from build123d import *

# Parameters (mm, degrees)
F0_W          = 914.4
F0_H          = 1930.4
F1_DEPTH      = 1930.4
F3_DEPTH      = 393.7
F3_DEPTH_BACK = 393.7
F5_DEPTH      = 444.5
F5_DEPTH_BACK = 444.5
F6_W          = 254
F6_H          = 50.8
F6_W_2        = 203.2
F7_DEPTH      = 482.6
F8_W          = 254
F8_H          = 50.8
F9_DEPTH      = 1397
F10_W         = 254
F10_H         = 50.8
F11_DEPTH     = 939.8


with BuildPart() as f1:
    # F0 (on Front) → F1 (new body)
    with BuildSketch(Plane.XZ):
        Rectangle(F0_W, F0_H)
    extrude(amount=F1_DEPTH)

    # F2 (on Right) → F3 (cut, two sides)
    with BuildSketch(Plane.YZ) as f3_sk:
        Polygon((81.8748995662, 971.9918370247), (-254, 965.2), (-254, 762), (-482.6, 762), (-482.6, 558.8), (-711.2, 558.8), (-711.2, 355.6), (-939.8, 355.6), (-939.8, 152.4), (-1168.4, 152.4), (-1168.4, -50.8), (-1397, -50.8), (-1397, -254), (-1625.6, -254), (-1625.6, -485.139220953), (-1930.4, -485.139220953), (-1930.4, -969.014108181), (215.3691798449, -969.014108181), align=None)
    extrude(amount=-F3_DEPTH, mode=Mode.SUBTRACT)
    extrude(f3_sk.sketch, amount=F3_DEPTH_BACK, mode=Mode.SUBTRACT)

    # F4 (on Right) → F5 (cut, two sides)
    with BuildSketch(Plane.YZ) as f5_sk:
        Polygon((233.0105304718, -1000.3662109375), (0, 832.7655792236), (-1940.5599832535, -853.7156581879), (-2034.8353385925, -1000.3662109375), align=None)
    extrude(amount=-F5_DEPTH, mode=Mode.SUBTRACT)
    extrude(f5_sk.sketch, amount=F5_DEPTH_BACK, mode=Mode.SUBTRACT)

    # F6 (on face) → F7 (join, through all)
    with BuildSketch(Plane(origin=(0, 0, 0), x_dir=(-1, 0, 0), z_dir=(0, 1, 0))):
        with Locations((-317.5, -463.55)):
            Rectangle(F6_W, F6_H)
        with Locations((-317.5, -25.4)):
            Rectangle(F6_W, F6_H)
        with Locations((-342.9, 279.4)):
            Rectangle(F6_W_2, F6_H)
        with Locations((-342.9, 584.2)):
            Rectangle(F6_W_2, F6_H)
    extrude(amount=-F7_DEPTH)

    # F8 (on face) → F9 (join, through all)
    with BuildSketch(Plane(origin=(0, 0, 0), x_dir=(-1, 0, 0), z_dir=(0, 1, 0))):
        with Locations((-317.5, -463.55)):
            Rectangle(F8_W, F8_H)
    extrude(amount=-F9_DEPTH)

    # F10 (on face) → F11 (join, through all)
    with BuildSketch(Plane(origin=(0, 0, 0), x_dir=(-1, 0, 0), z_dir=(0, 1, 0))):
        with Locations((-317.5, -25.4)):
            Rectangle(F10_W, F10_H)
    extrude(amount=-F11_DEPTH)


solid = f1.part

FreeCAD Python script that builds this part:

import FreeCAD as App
import Part
import Sketcher
from FreeCAD import Vector
Q = App.Units.Quantity

doc = App.newDocument("Part")
body = doc.addObject("PartDesign::Body", "Body")

# Sketch on XZ plane
sketch1 = body.newObject("Sketcher::SketchObject", "Sketch")
sketch1.AttachmentSupport = (doc.getObject("XZ_Plane"), [""])
sketch1.MapMode = "FlatFace"
sketch1.addGeometry(Part.LineSegment(Vector(-457, 965, 0), Vector(-457, -965, 0)), False)
sketch1.addGeometry(Part.LineSegment(Vector(-457, -965, 0), Vector(457, -965, 0)), False)
sketch1.addGeometry(Part.LineSegment(Vector(457, -965, 0), Vector(457, 965, 0)), False)
sketch1.addGeometry(Part.LineSegment(Vector(457, 965, 0), Vector(-457, 965, 0)), False)
sketch1.addConstraint(Sketcher.Constraint("Coincident", 0, 2, 1, 1))
sketch1.addConstraint(Sketcher.Constraint("Coincident", 1, 2, 2, 1))
sketch1.addConstraint(Sketcher.Constraint("Coincident", 2, 2, 3, 1))
sketch1.addConstraint(Sketcher.Constraint("Coincident", 3, 2, 0, 1))
sketch1.addConstraint(Sketcher.Constraint("Vertical", 0))
sketch1.addConstraint(Sketcher.Constraint("Horizontal", 1))
sketch1.addConstraint(Sketcher.Constraint("Vertical", 2))
sketch1.addConstraint(Sketcher.Constraint("Horizontal", 3))
sketch1.addConstraint(Sketcher.Constraint("Symmetric", 0, 2, 2, 2, -1, 1))
sketch1.addConstraint(Sketcher.Constraint("DistanceX", 1, 1, 1, 2, Q("36 in")))
sketch1.addConstraint(Sketcher.Constraint("DistanceY", 0, 2, 0, 1, Q("76 in")))
pad1 = body.newObject("PartDesign::Pad", "Pad")
pad1.Profile = sketch1
pad1.Length = Q("76 in")

# Sketch on YZ plane
sketch2 = body.newObject("Sketcher::SketchObject", "Sketch001")
sketch2.AttachmentSupport = (doc.getObject("YZ_Plane"), [""])
sketch2.MapMode = "FlatFace"
sketch2.addGeometry(Part.LineSegment(Vector(82, 972, 0), Vector(-254, 965, 0)), False)
sketch2.addGeometry(Part.LineSegment(Vector(-254, 965, 0), Vector(-254, 762, 0)), False)
sketch2.addGeometry(Part.LineSegment(Vector(-254, 762, 0), Vector(-483, 762, 0)), False)
sketch2.addGeometry(Part.LineSegment(Vector(-483, 762, 0), Vector(-483, 559, 0)), False)
sketch2.addGeometry(Part.LineSegment(Vector(-483, 559, 0), Vector(-711, 559, 0)), False)
sketch2.addGeometry(Part.LineSegment(Vector(-711, 559, 0), Vector(-711, 356, 0)), False)
sketch2.addGeometry(Part.LineSegment(Vector(-711, 356, 0), Vector(-940, 356, 0)), False)
sketch2.addGeometry(Part.LineSegment(Vector(-940, 356, 0), Vector(-940, 152, 0)), False)
sketch2.addGeometry(Part.LineSegment(Vector(-940, 152, 0), Vector(-1168, 152, 0)), False)
sketch2.addGeometry(Part.LineSegment(Vector(-1168, 152, 0), Vector(-1168, -51, 0)), False)
sketch2.addGeometry(Part.LineSegment(Vector(-1168, -51, 0), Vector(-1397, -51, 0)), False)
sketch2.addGeometry(Part.LineSegment(Vector(-1397, -51, 0), Vector(-1397, -254, 0)), False)
sketch2.addGeometry(Part.LineSegment(Vector(-1397, -254, 0), Vector(-1626, -254, 0)), False)
sketch2.addGeometry(Part.LineSegment(Vector(-1626, -254, 0), Vector(-1626, -485, 0)), False)
sketch2.addGeometry(Part.LineSegment(Vector(-1626, -485, 0), Vector(-1930, -485, 0)), False)
sketch2.addGeometry(Part.LineSegment(Vector(-1930, -485, 0), Vector(-1930, -969, 0)), False)
sketch2.addGeometry(Part.LineSegment(Vector(-1930, -969, 0), Vector(215, -969, 0)), False)
sketch2.addGeometry(Part.LineSegment(Vector(215, -969, 0), Vector(82, 972, 0)), False)
sketch2.addConstraint(Sketcher.Constraint("Coincident", 0, 2, 1, 1))
sketch2.addConstraint(Sketcher.Constraint("Coincident", 1, 2, 2, 1))
sketch2.addConstraint(Sketcher.Constraint("Coincident", 2, 2, 3, 1))
sketch2.addConstraint(Sketcher.Constraint("Coincident", 3, 2, 4, 1))
sketch2.addConstraint(Sketcher.Constraint("Coincident", 4, 2, 5, 1))
sketch2.addConstraint(Sketcher.Constraint("Coincident", 5, 2, 6, 1))
sketch2.addConstraint(Sketcher.Constraint("Coincident", 6, 2, 7, 1))
sketch2.addConstraint(Sketcher.Constraint("Coincident", 7, 2, 8, 1))
sketch2.addConstraint(Sketcher.Constraint("Coincident", 8, 2, 9, 1))
sketch2.addConstraint(Sketcher.Constraint("Coincident", 9, 2, 10, 1))
sketch2.addConstraint(Sketcher.Constraint("Coincident", 10, 2, 11, 1))
sketch2.addConstraint(Sketcher.Constraint("Coincident", 11, 2, 12, 1))
sketch2.addConstraint(Sketcher.Constraint("Coincident", 12, 2, 13, 1))
sketch2.addConstraint(Sketcher.Constraint("Coincident", 13, 2, 14, 1))
sketch2.addConstraint(Sketcher.Constraint("Coincident", 14, 2, 15, 1))
sketch2.addConstraint(Sketcher.Constraint("Coincident", 15, 2, 16, 1))
sketch2.addConstraint(Sketcher.Constraint("Coincident", 16, 2, 17, 1))
sketch2.addConstraint(Sketcher.Constraint("Coincident", 17, 2, 0, 1))
sketch2.addConstraint(Sketcher.Constraint("Vertical", 1))
sketch2.addConstraint(Sketcher.Constraint("Horizontal", 2))
sketch2.addConstraint(Sketcher.Constraint("Vertical", 3))
sketch2.addConstraint(Sketcher.Constraint("Horizontal", 4))
sketch2.addConstraint(Sketcher.Constraint("Vertical", 5))
sketch2.addConstraint(Sketcher.Constraint("Horizontal", 6))
sketch2.addConstraint(Sketcher.Constraint("Vertical", 7))
sketch2.addConstraint(Sketcher.Constraint("Horizontal", 8))
sketch2.addConstraint(Sketcher.Constraint("Vertical", 9))
sketch2.addConstraint(Sketcher.Constraint("Horizontal", 10))
sketch2.addConstraint(Sketcher.Constraint("Vertical", 11))
sketch2.addConstraint(Sketcher.Constraint("Horizontal", 12))
sketch2.addConstraint(Sketcher.Constraint("Vertical", 13))
sketch2.addConstraint(Sketcher.Constraint("Horizontal", 14))
sketch2.addConstraint(Sketcher.Constraint("Vertical", 15))
sketch2.addConstraint(Sketcher.Constraint("Horizontal", 16))
sketch2.addConstraint(Sketcher.Constraint("Equal", 2, 4))
sketch2.addConstraint(Sketcher.Constraint("Equal", 4, 6))
sketch2.addConstraint(Sketcher.Constraint("Equal", 6, 8))
sketch2.addConstraint(Sketcher.Constraint("Equal", 8, 10))
sketch2.addConstraint(Sketcher.Constraint("Equal", 10, 12))
sketch2.addConstraint(Sketcher.Constraint("Equal", 1, 3))
sketch2.addConstraint(Sketcher.Constraint("Equal", 3, 5))
sketch2.addConstraint(Sketcher.Constraint("Equal", 5, 7))
sketch2.addConstraint(Sketcher.Constraint("Equal", 7, 9))
sketch2.addConstraint(Sketcher.Constraint("Equal", 9, 11))
sketch2.addConstraint(Sketcher.Constraint("DistanceX", 2, 2, 2, 1, Q("9 in")))
sketch2.addConstraint(Sketcher.Constraint("DistanceX", 14, 2, 14, 1, Q("12 in")))
sketch2.addConstraint(Sketcher.Constraint("DistanceY", 1, 2, 1, 1, Q("8 in")))
sketch2.addConstraint(Sketcher.Constraint("DistanceX", 0, 2, -1, 1, Q("10 in")))
sketch2.addConstraint(Sketcher.Constraint("DistanceY", -1, 1, 0, 2, Q("38 in")))
sketch2.addConstraint(Sketcher.Constraint("DistanceX", 16, 1, 16, 2, 2145.76918))
sketch2.addConstraint(Sketcher.Constraint("DistanceY", 13, 2, 13, 1, 231.139221))
sketch2.addConstraint(Sketcher.Constraint("DistanceX", -1, 1, 17, 2, 81.8749))
sketch2.addConstraint(Sketcher.Constraint("Distance", 17, 1945.591119))
sketch2.addConstraint(Sketcher.Constraint("DistanceY", 15, 2, 15, 1, 483.874887))
pocket1 = body.newObject("PartDesign::Pocket", "Pocket")
pocket1.Profile = sketch2
pocket1.Type = "TwoLengths"
pocket1.Length = Q("15.5 in")
pocket1.Length2 = Q("15.5 in")

# Sketch on YZ plane
sketch3 = body.newObject("Sketcher::SketchObject", "Sketch002")
sketch3.AttachmentSupport = (doc.getObject("YZ_Plane"), [""])
sketch3.MapMode = "FlatFace"
sketch3.addGeometry(Part.LineSegment(Vector(233, -1000, 0), Vector(0, 833, 0)), False)
sketch3.addGeometry(Part.LineSegment(Vector(0, 833, 0), Vector(-1941, -854, 0)), False)
sketch3.addGeometry(Part.LineSegment(Vector(-1941, -854, 0), Vector(-2035, -1000, 0)), False)
sketch3.addGeometry(Part.LineSegment(Vector(-2035, -1000, 0), Vector(233, -1000, 0)), False)
sketch3.addConstraint(Sketcher.Constraint("Coincident", 0, 2, 1, 1))
sketch3.addConstraint(Sketcher.Constraint("Coincident", 1, 2, 2, 1))
sketch3.addConstraint(Sketcher.Constraint("Coincident", 2, 2, 3, 1))
sketch3.addConstraint(Sketcher.Constraint("Coincident", 3, 2, 0, 1))
sketch3.addConstraint(Sketcher.Constraint("Horizontal", 3))
sketch3.addConstraint(Sketcher.Constraint("PointOnObject", 0, 2, -2))
sketch3.addConstraint(Sketcher.Constraint("DistanceX", 3, 1, 3, 2, 2267.845869))
sketch3.addConstraint(Sketcher.Constraint("DistanceY", -1, 1, 0, 2, 832.765579))
sketch3.addConstraint(Sketcher.Constraint("DistanceY", 1, 2, -1, 1, 853.715658))
sketch3.addConstraint(Sketcher.Constraint("DistanceX", 2, 2, -1, 1, 2034.835339))
sketch3.addConstraint(Sketcher.Constraint("DistanceY", 2, 2, -1, 1, 1000.366211))
sketch3.addConstraint(Sketcher.Constraint("Distance", 1, 2570.990473))
pocket2 = body.newObject("PartDesign::Pocket", "Pocket001")
pocket2.Profile = sketch3
pocket2.Type = "TwoLengths"
pocket2.Length = Q("17.5 in")
pocket2.Length2 = Q("17.5 in")

# Sketch on XZ plane
sketch4 = body.newObject("Sketcher::SketchObject", "Sketch003")
sketch4.AttachmentSupport = (doc.getObject("XZ_Plane"), [""])
sketch4.MapMode = "FlatFace"
sketch4.addGeometry(Part.LineSegment(Vector(444, -438, 0), Vector(444, -489, 0)), False)
sketch4.addGeometry(Part.LineSegment(Vector(444, -489, 0), Vector(190, -489, 0)), False)
sketch4.addGeometry(Part.LineSegment(Vector(190, -489, 0), Vector(190, -438, 0)), False)
sketch4.addGeometry(Part.LineSegment(Vector(190, -438, 0), Vector(444, -438, 0)), False)
sketch4.addGeometry(Part.LineSegment(Vector(444, 0, 0), Vector(444, -51, 0)), False)
sketch4.addGeometry(Part.LineSegment(Vector(444, -51, 0), Vector(190, -51, 0)), False)
sketch4.addGeometry(Part.LineSegment(Vector(190, -51, 0), Vector(190, 0, 0)), False)
sketch4.addGeometry(Part.LineSegment(Vector(190, 0, 0), Vector(444, 0, 0)), False)
sketch4.addGeometry(Part.LineSegment(Vector(444, 305, 0), Vector(444, 254, 0)), False)
sketch4.addGeometry(Part.LineSegment(Vector(444, 254, 0), Vector(241, 254, 0)), False)
sketch4.addGeometry(Part.LineSegment(Vector(241, 254, 0), Vector(241, 305, 0)), False)
sketch4.addGeometry(Part.LineSegment(Vector(241, 305, 0), Vector(444, 305, 0)), False)
sketch4.addGeometry(Part.LineSegment(Vector(444, 610, 0), Vector(444, 559, 0)), False)
sketch4.addGeometry(Part.LineSegment(Vector(444, 559, 0), Vector(241, 559, 0)), False)
sketch4.addGeometry(Part.LineSegment(Vector(241, 559, 0), Vector(241, 610, 0)), False)
sketch4.addGeometry(Part.LineSegment(Vector(241, 610, 0), Vector(444, 610, 0)), False)
sketch4.addConstraint(Sketcher.Constraint("Coincident", 0, 2, 1, 1))
sketch4.addConstraint(Sketcher.Constraint("Coincident", 1, 2, 2, 1))
sketch4.addConstraint(Sketcher.Constraint("Coincident", 2, 2, 3, 1))
sketch4.addConstraint(Sketcher.Constraint("Coincident", 3, 2, 0, 1))
sketch4.addConstraint(Sketcher.Constraint("Coincident", 4, 2, 5, 1))
sketch4.addConstraint(Sketcher.Constraint("Coincident", 5, 2, 6, 1))
sketch4.addConstraint(Sketcher.Constraint("Coincident", 6, 2, 7, 1))
sketch4.addConstraint(Sketcher.Constraint("Coincident", 7, 2, 4, 1))
sketch4.addConstraint(Sketcher.Constraint("Coincident", 8, 2, 9, 1))
sketch4.addConstraint(Sketcher.Constraint("Coincident", 9, 2, 10, 1))
sketch4.addConstraint(Sketcher.Constraint("Coincident", 10, 2, 11, 1))
sketch4.addConstraint(Sketcher.Constraint("Coincident", 11, 2, 8, 1))
sketch4.addConstraint(Sketcher.Constraint("Coincident", 12, 2, 13, 1))
sketch4.addConstraint(Sketcher.Constraint("Coincident", 13, 2, 14, 1))
sketch4.addConstraint(Sketcher.Constraint("Coincident", 14, 2, 15, 1))
sketch4.addConstraint(Sketcher.Constraint("Coincident", 15, 2, 12, 1))
sketch4.addConstraint(Sketcher.Constraint("Vertical", 0))
sketch4.addConstraint(Sketcher.Constraint("Horizontal", 1))
sketch4.addConstraint(Sketcher.Constraint("Vertical", 2))
sketch4.addConstraint(Sketcher.Constraint("Horizontal", 3))
sketch4.addConstraint(Sketcher.Constraint("Vertical", 4))
sketch4.addConstraint(Sketcher.Constraint("Horizontal", 5))
sketch4.addConstraint(Sketcher.Constraint("Vertical", 6))
sketch4.addConstraint(Sketcher.Constraint("Horizontal", 7))
sketch4.addConstraint(Sketcher.Constraint("Vertical", 8))
sketch4.addConstraint(Sketcher.Constraint("Horizontal", 9))
sketch4.addConstraint(Sketcher.Constraint("Vertical", 10))
sketch4.addConstraint(Sketcher.Constraint("Horizontal", 11))
sketch4.addConstraint(Sketcher.Constraint("Vertical", 12))
sketch4.addConstraint(Sketcher.Constraint("Horizontal", 13))
sketch4.addConstraint(Sketcher.Constraint("Vertical", 14))
sketch4.addConstraint(Sketcher.Constraint("Horizontal", 15))
sketch4.addConstraint(Sketcher.Constraint("PointOnObject", 6, 2, -1))
sketch4.addConstraint(Sketcher.Constraint("Vertical", 3, 2, 4, 2))
sketch4.addConstraint(Sketcher.Constraint("Vertical", 2, 2, 5, 2))
sketch4.addConstraint(Sketcher.Constraint("Vertical", 7, 2, 8, 2))
sketch4.addConstraint(Sketcher.Constraint("Vertical", 11, 2, 12, 2))
sketch4.addConstraint(Sketcher.Constraint("Vertical", 10, 2, 13, 2))
sketch4.addConstraint(Sketcher.Constraint("Equal", 2, 4))
sketch4.addConstraint(Sketcher.Constraint("Equal", 6, 8))
sketch4.addConstraint(Sketcher.Constraint("Equal", 10, 12))
sketch4.addConstraint(Sketcher.Constraint("DistanceX", 1, 2, 1, 1, Q("10 in")))
sketch4.addConstraint(Sketcher.Constraint("DistanceX", 9, 2, 9, 1, Q("8 in")))
sketch4.addConstraint(Sketcher.Constraint("DistanceY", 0, 2, 0, 1, Q("2 in")))
sketch4.addConstraint(Sketcher.Constraint("DistanceY", -1, 1, 8, 2, Q("10 in")))
sketch4.addConstraint(Sketcher.Constraint("DistanceY", -1, 1, 12, 2, Q("22 in")))
sketch4.addConstraint(Sketcher.Constraint("DistanceX", -1, 1, 0, 2, Q("17.5 in")))
sketch4.addConstraint(Sketcher.Constraint("DistanceY", 0, 2, -1, 1, Q("19.25 in")))
pad2 = body.newObject("PartDesign::Pad", "Pad001")
pad2.Profile = sketch4
pad2.Length = Q("19 in")

# Sketch on XZ plane
sketch5 = body.newObject("Sketcher::SketchObject", "Sketch004")
sketch5.AttachmentSupport = (doc.getObject("XZ_Plane"), [""])
sketch5.MapMode = "FlatFace"
sketch5.addGeometry(Part.LineSegment(Vector(444, -438, 0), Vector(444, -489, 0)), False)
sketch5.addGeometry(Part.LineSegment(Vector(444, -489, 0), Vector(190, -489, 0)), False)
sketch5.addGeometry(Part.LineSegment(Vector(190, -489, 0), Vector(190, -438, 0)), False)
sketch5.addGeometry(Part.LineSegment(Vector(190, -438, 0), Vector(444, -438, 0)), False)
sketch5.addConstraint(Sketcher.Constraint("Coincident", 0, 2, 1, 1))
sketch5.addConstraint(Sketcher.Constraint("Coincident", 1, 2, 2, 1))
sketch5.addConstraint(Sketcher.Constraint("Coincident", 2, 2, 3, 1))
sketch5.addConstraint(Sketcher.Constraint("Coincident", 3, 2, 0, 1))
sketch5.addConstraint(Sketcher.Constraint("Vertical", 0))
sketch5.addConstraint(Sketcher.Constraint("Horizontal", 1))
sketch5.addConstraint(Sketcher.Constraint("Vertical", 2))
sketch5.addConstraint(Sketcher.Constraint("Horizontal", 3))
sketch5.addConstraint(Sketcher.Constraint("DistanceX", 1, 2, 1, 1, Q("10 in")))
sketch5.addConstraint(Sketcher.Constraint("DistanceY", 0, 2, 0, 1, Q("2 in")))
sketch5.addConstraint(Sketcher.Constraint("DistanceX", -1, 1, 0, 2, Q("17.5 in")))
sketch5.addConstraint(Sketcher.Constraint("DistanceY", 0, 2, -1, 1, Q("19.25 in")))
pad3 = body.newObject("PartDesign::Pad", "Pad002")
pad3.Profile = sketch5
pad3.Length = Q("55 in")

# Sketch on XZ plane
sketch6 = body.newObject("Sketcher::SketchObject", "Sketch005")
sketch6.AttachmentSupport = (doc.getObject("XZ_Plane"), [""])
sketch6.MapMode = "FlatFace"
sketch6.addGeometry(Part.LineSegment(Vector(444, 0, 0), Vector(444, -51, 0)), False)
sketch6.addGeometry(Part.LineSegment(Vector(444, -51, 0), Vector(190, -51, 0)), False)
sketch6.addGeometry(Part.LineSegment(Vector(190, -51, 0), Vector(190, 0, 0)), False)
sketch6.addGeometry(Part.LineSegment(Vector(190, 0, 0), Vector(444, 0, 0)), False)
sketch6.addConstraint(Sketcher.Constraint("Coincident", 0, 2, 1, 1))
sketch6.addConstraint(Sketcher.Constraint("Coincident", 1, 2, 2, 1))
sketch6.addConstraint(Sketcher.Constraint("Coincident", 2, 2, 3, 1))
sketch6.addConstraint(Sketcher.Constraint("Coincident", 3, 2, 0, 1))
sketch6.addConstraint(Sketcher.Constraint("Vertical", 0))
sketch6.addConstraint(Sketcher.Constraint("Horizontal", 1))
sketch6.addConstraint(Sketcher.Constraint("Vertical", 2))
sketch6.addConstraint(Sketcher.Constraint("Horizontal", 3))
sketch6.addConstraint(Sketcher.Constraint("PointOnObject", 2, 2, -1))
sketch6.addConstraint(Sketcher.Constraint("DistanceX", 1, 2, 1, 1, Q("10 in")))
sketch6.addConstraint(Sketcher.Constraint("DistanceY", 0, 2, 0, 1, Q("2 in")))
sketch6.addConstraint(Sketcher.Constraint("DistanceX", -1, 1, 0, 2, Q("17.5 in")))
pad4 = body.newObject("PartDesign::Pad", "Pad003")
pad4.Profile = sketch6
pad4.Length = Q("37 in")

doc.recompute()
